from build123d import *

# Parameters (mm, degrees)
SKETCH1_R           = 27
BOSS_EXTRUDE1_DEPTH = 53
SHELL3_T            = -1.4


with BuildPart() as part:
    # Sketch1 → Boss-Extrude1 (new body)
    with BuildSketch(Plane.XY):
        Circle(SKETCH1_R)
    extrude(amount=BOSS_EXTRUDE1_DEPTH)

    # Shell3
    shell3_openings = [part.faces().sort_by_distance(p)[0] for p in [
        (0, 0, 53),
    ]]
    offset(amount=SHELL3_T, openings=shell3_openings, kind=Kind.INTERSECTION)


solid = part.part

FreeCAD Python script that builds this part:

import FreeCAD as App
import Part
import Sketcher
from FreeCAD import Vector
Q = App.Units.Quantity


def faces_at(feature, points):
    """Names of the faces that lie closest to the given points."""
    faces = feature.Shape.Faces
    near = lambda p: min(range(len(faces)), key=lambda i: faces[i].distToShape(Part.Vertex(*p))[0])
    return sorted({f"Face{near(p) + 1}" for p in points})

doc = App.newDocument("Part")
body = doc.addObject("PartDesign::Body", "Body")

# Sketch on XY plane
sketch1 = doc.addObject("Sketcher::SketchObject", "Sketch")
body.addObject(sketch1)
sketch1.AttachmentSupport = (doc.XY_Plane, [""])
sketch1.MapMode = "FlatFace"
sketch1.addGeometry(Part.Circle(Vector(0, 0, 0), Vector(0, 0, 1), 27), False)
sketch1.addConstraint([
    Sketcher.Constraint("Coincident", 0, 3, -1, 1),
    Sketcher.Constraint("Diameter", 0, Q("54 mm")),
])
pad1 = doc.addObject("PartDesign::Pad", "Pad")
body.addObject(pad1)
pad1.Profile = sketch1
pad1.Length = 53
doc.recompute()

thickness = doc.addObject("PartDesign::Thickness", "Thickness")
body.addObject(thickness)
thickness.Base = (pad1, faces_at(pad1, [(0, 0, 53)]))
thickness.Value = 1.4
thickness.Reversed = True
thickness.Join = "Intersection"

doc.recompute()
